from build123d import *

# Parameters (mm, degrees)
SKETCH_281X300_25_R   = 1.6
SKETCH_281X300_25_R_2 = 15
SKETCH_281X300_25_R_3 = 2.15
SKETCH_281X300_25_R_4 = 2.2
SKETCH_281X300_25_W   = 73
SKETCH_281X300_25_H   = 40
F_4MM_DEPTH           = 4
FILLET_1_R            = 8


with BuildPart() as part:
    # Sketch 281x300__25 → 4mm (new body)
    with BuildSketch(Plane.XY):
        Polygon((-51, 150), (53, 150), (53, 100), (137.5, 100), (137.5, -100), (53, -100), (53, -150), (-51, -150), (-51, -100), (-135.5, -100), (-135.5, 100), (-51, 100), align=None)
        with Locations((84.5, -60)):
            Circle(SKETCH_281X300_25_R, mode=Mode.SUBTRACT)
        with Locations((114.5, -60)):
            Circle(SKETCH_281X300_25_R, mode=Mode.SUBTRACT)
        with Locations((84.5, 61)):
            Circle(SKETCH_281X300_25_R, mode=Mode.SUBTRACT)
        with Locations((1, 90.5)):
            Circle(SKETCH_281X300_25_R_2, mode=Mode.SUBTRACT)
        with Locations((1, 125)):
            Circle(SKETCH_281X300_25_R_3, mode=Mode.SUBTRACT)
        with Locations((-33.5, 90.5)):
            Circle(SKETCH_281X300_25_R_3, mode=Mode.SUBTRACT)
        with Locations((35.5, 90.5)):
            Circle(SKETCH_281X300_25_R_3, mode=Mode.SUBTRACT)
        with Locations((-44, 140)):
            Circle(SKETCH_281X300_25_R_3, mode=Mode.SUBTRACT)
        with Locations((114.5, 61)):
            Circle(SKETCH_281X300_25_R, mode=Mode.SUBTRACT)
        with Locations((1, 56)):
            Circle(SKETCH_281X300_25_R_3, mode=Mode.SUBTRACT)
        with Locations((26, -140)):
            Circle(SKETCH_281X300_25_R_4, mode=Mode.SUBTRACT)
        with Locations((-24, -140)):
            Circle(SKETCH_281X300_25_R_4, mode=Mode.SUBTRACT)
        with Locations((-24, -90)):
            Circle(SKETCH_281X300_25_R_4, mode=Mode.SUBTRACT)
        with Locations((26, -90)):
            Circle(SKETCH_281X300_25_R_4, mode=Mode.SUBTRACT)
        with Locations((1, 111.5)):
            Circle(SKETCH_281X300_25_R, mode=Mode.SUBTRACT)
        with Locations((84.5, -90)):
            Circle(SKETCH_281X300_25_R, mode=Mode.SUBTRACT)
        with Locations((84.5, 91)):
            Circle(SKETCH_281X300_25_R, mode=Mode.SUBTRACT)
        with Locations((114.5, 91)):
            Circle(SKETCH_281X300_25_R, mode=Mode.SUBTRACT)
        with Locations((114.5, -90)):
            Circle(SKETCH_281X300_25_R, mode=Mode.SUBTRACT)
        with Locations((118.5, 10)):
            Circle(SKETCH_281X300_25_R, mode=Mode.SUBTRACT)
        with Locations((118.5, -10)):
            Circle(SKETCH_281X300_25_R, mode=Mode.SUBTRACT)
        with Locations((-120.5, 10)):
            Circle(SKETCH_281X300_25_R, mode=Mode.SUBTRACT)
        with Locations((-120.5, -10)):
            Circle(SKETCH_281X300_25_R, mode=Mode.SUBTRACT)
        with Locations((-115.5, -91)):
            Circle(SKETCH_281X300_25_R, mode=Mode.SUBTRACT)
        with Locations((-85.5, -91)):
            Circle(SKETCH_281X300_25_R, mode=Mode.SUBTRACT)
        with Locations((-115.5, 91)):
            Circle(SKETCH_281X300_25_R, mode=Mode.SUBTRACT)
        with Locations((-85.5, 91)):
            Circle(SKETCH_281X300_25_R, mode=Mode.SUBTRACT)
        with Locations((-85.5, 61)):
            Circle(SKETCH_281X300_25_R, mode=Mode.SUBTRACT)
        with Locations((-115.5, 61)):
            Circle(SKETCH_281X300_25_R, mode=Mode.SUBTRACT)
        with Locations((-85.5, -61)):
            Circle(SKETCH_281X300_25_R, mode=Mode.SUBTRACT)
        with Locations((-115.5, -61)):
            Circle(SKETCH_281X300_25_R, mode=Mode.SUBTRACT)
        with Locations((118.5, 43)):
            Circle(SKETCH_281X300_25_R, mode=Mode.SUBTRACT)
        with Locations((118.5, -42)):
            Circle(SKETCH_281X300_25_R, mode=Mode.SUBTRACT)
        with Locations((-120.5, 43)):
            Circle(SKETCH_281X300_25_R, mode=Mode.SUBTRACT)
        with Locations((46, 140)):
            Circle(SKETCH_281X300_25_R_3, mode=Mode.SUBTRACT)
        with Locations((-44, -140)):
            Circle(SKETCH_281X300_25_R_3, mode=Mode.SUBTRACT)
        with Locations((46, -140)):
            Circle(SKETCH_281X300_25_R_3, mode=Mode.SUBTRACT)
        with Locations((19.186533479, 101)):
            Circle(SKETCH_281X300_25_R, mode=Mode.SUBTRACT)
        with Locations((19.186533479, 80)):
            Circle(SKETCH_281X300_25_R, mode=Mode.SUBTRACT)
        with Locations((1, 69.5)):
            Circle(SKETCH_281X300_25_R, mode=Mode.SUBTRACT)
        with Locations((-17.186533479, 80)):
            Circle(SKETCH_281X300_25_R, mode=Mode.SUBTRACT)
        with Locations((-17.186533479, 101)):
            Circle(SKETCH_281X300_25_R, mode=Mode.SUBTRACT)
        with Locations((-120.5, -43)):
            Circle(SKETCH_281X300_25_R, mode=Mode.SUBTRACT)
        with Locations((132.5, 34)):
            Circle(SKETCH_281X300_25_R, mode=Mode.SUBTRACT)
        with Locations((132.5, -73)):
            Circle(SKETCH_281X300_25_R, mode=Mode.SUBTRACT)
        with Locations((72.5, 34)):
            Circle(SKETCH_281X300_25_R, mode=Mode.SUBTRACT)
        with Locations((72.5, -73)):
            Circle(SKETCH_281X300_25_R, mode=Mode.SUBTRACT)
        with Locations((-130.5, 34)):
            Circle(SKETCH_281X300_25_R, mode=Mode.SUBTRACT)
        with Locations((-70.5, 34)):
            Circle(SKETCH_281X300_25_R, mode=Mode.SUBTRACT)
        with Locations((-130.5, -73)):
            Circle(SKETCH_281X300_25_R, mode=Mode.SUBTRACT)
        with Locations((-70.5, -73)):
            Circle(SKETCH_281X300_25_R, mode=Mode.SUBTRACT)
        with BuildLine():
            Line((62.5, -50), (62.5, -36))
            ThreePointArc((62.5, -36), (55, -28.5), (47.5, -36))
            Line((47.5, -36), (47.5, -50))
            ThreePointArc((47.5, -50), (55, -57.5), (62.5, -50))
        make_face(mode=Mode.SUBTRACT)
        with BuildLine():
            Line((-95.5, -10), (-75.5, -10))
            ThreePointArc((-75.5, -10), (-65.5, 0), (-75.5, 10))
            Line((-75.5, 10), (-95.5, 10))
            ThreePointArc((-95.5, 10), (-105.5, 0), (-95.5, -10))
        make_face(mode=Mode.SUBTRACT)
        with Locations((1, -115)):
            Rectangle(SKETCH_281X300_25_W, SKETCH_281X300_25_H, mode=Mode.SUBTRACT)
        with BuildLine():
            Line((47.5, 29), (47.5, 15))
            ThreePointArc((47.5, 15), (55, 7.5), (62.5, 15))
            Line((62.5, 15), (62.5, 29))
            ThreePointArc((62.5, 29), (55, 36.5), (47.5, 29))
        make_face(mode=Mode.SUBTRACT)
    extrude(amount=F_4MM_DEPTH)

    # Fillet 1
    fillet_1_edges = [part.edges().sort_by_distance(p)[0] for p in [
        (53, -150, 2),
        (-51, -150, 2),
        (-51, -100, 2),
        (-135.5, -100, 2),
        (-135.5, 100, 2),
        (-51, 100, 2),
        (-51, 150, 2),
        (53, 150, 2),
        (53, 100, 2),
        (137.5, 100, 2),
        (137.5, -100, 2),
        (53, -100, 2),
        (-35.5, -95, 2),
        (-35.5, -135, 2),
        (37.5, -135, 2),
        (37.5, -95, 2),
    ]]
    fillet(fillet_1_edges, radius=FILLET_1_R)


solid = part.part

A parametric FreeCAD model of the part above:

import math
import FreeCAD as App
import Part
import Sketcher
Q = App.Units.Quantity


def edges_at(feature, points):
    """Names of the edges that pass closest to the given points."""
    edges = feature.Shape.Edges
    near = lambda p: min(range(len(edges)), key=lambda i: edges[i].distToShape(Part.Vertex(*p))[0])
    return sorted({f"Edge{near(p) + 1}" for p in points})


def add_polygon(sketch, points):
    """Adds a closed chain of lines whose ends are joined by coincident constraints."""
    first, n = sketch.GeometryCount, len(points)
    for a, b in zip(points, points[1:] + points[:1]):
        sketch.addGeometry(Part.LineSegment(App.Vector(*a, 0), App.Vector(*b, 0)), False)
    for i in range(n):
        sketch.addConstraint(Sketcher.Constraint("Coincident", first + i, 2, first + (i + 1) % n, 1))

doc = App.newDocument("Part")
body = doc.addObject("PartDesign::Body", "Body")

sketch1 = doc.addObject("Sketcher::SketchObject", "Sketch")
body.addObject(sketch1)
sketch1.AttachmentSupport = (doc.XY_Plane, [""])
sketch1.MapMode = "FlatFace"
add_polygon(sketch1, [(53, 150), (-51, 150), (-51, 100), (-135.5, 100), (-135.5, -100), (-51, -100), (-51, -150), (53, -150), (53, -100), (137.5, -100), (137.5, 100), (53, 100)])
sketch1.addGeometry(Part.Circle(App.Vector(114.5, -90, 0), App.Vector(0, 0, 1), 1.6), False)
sketch1.addGeometry(Part.Circle(App.Vector(132.5, -73, 0), App.Vector(0, 0, 1), 1.6), False)
sketch1.addGeometry(Part.Circle(App.Vector(84.5, -90, 0), App.Vector(0, 0, 1), 1.6), False)
sketch1.addGeometry(Part.Circle(App.Vector(72.5, -73, 0), App.Vector(0, 0, 1), 1.6), False)
sketch1.addGeometry(Part.Circle(App.Vector(46, -140, 0), App.Vector(0, 0, 1), 2.1), False)
sketch1.addGeometry(Part.Circle(App.Vector(26, -140, 0), App.Vector(0, 0, 1), 2.2), False)
sketch1.addGeometry(Part.Circle(App.Vector(26, -90, 0), App.Vector(0, 0, 1), 2.2), False)
sketch1.addGeometry(Part.Circle(App.Vector(114.5, -60, 0), App.Vector(0, 0, 1), 1.6), False)
sketch1.addGeometry(Part.Circle(App.Vector(118.5, -42, 0), App.Vector(0, 0, 1), 1.6), False)
sketch1.addGeometry(Part.Circle(App.Vector(84.5, -60, 0), App.Vector(0, 0, 1), 1.6), False)
sketch1.addGeometry(Part.Circle(App.Vector(118.5, -10, 0), App.Vector(0, 0, 1), 1.6), False)
sketch1.addGeometry(Part.ArcOfCircle(Part.Circle(App.Vector(55, -50, 0), App.Vector(0, 0, 1), 7.5), math.radians(180), math.radians(360)), False)
sketch1.addGeometry(Part.LineSegment(App.Vector(47.5, -50, 0), App.Vector(47.5, -36, 0)), False)
sketch1.addGeometry(Part.ArcOfCircle(Part.Circle(App.Vector(55, -36, 0), App.Vector(0, 0, 1), 7.5), math.radians(0), math.radians(180)), False)
sketch1.addGeometry(Part.LineSegment(App.Vector(62.5, -36, 0), App.Vector(62.5, -50, 0)), False)
sketch1.addGeometry(Part.Circle(App.Vector(-24, -140, 0), App.Vector(0, 0, 1), 2.2), False)
add_polygon(sketch1, [(-35.5, -135), (-35.5, -95), (37.5, -95), (37.5, -135)])
sketch1.addGeometry(Part.Circle(App.Vector(-44, -140, 0), App.Vector(0, 0, 1), 2.1), False)
sketch1.addGeometry(Part.Circle(App.Vector(-24, -90, 0), App.Vector(0, 0, 1), 2.2), False)
sketch1.addGeometry(Part.Circle(App.Vector(-85.5, -91, 0), App.Vector(0, 0, 1), 1.6), False)
sketch1.addGeometry(Part.Circle(App.Vector(-70.5, -73, 0), App.Vector(0, 0, 1), 1.6), False)
sketch1.addGeometry(Part.Circle(App.Vector(-115.5, -91, 0), App.Vector(0, 0, 1), 1.6), False)
sketch1.addGeometry(Part.Circle(App.Vector(-130.5, -73, 0), App.Vector(0, 0, 1), 1.6), False)
sketch1.addGeometry(Part.Circle(App.Vector(-85.5, -61, 0), App.Vector(0, 0, 1), 1.6), False)
sketch1.addGeometry(Part.Circle(App.Vector(-115.5, -61, 0), App.Vector(0, 0, 1), 1.6), False)
sketch1.addGeometry(Part.Circle(App.Vector(-120.5, -43, 0), App.Vector(0, 0, 1), 1.6), False)
sketch1.addGeometry(Part.Circle(App.Vector(-120.5, -10, 0), App.Vector(0, 0, 1), 1.6), False)
sketch1.addGeometry(Part.Circle(App.Vector(118.5, 10, 0), App.Vector(0, 0, 1), 1.6), False)
sketch1.addGeometry(Part.Circle(App.Vector(132.5, 34, 0), App.Vector(0, 0, 1), 1.6), False)
sketch1.addGeometry(Part.Circle(App.Vector(72.5, 34, 0), App.Vector(0, 0, 1), 1.6), False)
sketch1.addGeometry(Part.Circle(App.Vector(118.5, 43, 0), App.Vector(0, 0, 1), 1.6), False)
sketch1.addGeometry(Part.Circle(App.Vector(114.5, 61, 0), App.Vector(0, 0, 1), 1.6), False)
sketch1.addGeometry(Part.Circle(App.Vector(84.5, 61, 0), App.Vector(0, 0, 1), 1.6), False)
sketch1.addGeometry(Part.ArcOfCircle(Part.Circle(App.Vector(55, 29, 0), App.Vector(0, 0, 1), 7.5), math.radians(0), math.radians(180)), False)
sketch1.addGeometry(Part.LineSegment(App.Vector(62.5, 29, 0), App.Vector(62.5, 15, 0)), False)
sketch1.addGeometry(Part.ArcOfCircle(Part.Circle(App.Vector(55, 15, 0), App.Vector(0, 0, 1), 7.5), math.radians(180), math.radians(360)), False)
sketch1.addGeometry(Part.LineSegment(App.Vector(47.5, 15, 0), App.Vector(47.5, 29, 0)), False)
sketch1.addGeometry(Part.Circle(App.Vector(114.5, 91, 0), App.Vector(0, 0, 1), 1.6), False)
sketch1.addGeometry(Part.Circle(App.Vector(84.5, 91, 0), App.Vector(0, 0, 1), 1.6), False)
sketch1.addGeometry(Part.Circle(App.Vector(35.5, 90.5, 0), App.Vector(0, 0, 1), 2.1), False)
sketch1.addGeometry(Part.Circle(App.Vector(19.2, 80, 0), App.Vector(0, 0, 1), 1.6), False)
sketch1.addGeometry(Part.Circle(App.Vector(19.2, 101, 0), App.Vector(0, 0, 1), 1.6), False)
sketch1.addGeometry(Part.Circle(App.Vector(46, 140, 0), App.Vector(0, 0, 1), 2.1), False)
sketch1.addGeometry(Part.Circle(App.Vector(1, 56, 0), App.Vector(0, 0, 1), 2.1), False)
sketch1.addGeometry(Part.Circle(App.Vector(1, 69.5, 0), App.Vector(0, 0, 1), 1.6), False)
sketch1.addGeometry(Part.ArcOfCircle(Part.Circle(App.Vector(-95.5, 0, 0), App.Vector(0, 0, 1), 10), math.radians(90), math.radians(270)), False)
sketch1.addGeometry(Part.LineSegment(App.Vector(-95.5, 10, 0), App.Vector(-75.5, 10, 0)), False)
sketch1.addGeometry(Part.ArcOfCircle(Part.Circle(App.Vector(-75.5, 0, 0), App.Vector(0, 0, 1), 10), math.radians(-90), math.radians(90)), False)
sketch1.addGeometry(Part.LineSegment(App.Vector(-75.5, -10, 0), App.Vector(-95.5, -10, 0)), False)
sketch1.addGeometry(Part.Circle(App.Vector(-70.5, 34, 0), App.Vector(0, 0, 1), 1.6), False)
sketch1.addGeometry(Part.Circle(App.Vector(-120.5, 10, 0), App.Vector(0, 0, 1), 1.6), False)
sketch1.addGeometry(Part.Circle(App.Vector(-130.5, 34, 0), App.Vector(0, 0, 1), 1.6), False)
sketch1.addGeometry(Part.Circle(App.Vector(-85.5, 61, 0), App.Vector(0, 0, 1), 1.6), False)
sketch1.addGeometry(Part.Circle(App.Vector(-120.5, 43, 0), App.Vector(0, 0, 1), 1.6), False)
sketch1.addGeometry(Part.Circle(App.Vector(-115.5, 61, 0), App.Vector(0, 0, 1), 1.6), False)
sketch1.addGeometry(Part.Circle(App.Vector(-17.2, 80, 0), App.Vector(0, 0, 1), 1.6), False)
sketch1.addGeometry(Part.Circle(App.Vector(1, 90.5, 0), App.Vector(0, 0, 1), 15), False)
sketch1.addGeometry(Part.Circle(App.Vector(-17.2, 101, 0), App.Vector(0, 0, 1), 1.6), False)
sketch1.addGeometry(Part.Circle(App.Vector(-33.5, 90.5, 0), App.Vector(0, 0, 1), 2.1), False)
sketch1.addGeometry(Part.Circle(App.Vector(1, 111.5, 0), App.Vector(0, 0, 1), 1.6), False)
sketch1.addGeometry(Part.Circle(App.Vector(1, 125, 0), App.Vector(0, 0, 1), 2.1), False)
sketch1.addGeometry(Part.Circle(App.Vector(-44, 140, 0), App.Vector(0, 0, 1), 2.1), False)
sketch1.addGeometry(Part.Circle(App.Vector(-85.5, 91, 0), App.Vector(0, 0, 1), 1.6), False)
sketch1.addGeometry(Part.Circle(App.Vector(-115.5, 91, 0), App.Vector(0, 0, 1), 1.6), False)
sketch1.addConstraint(Sketcher.Constraint("Tangent", 23, 1, 24, 1))
sketch1.addConstraint(Sketcher.Constraint("Tangent", 24, 2, 25, 2))
sketch1.addConstraint(Sketcher.Constraint("Tangent", 25, 1, 26, 1))
sketch1.addConstraint(Sketcher.Constraint("Tangent", 26, 2, 23, 2))
sketch1.addConstraint(Sketcher.Constraint("Tangent", 48, 1, 49, 1))
sketch1.addConstraint(Sketcher.Constraint("Tangent", 49, 2, 50, 2))
sketch1.addConstraint(Sketcher.Constraint("Tangent", 50, 1, 51, 1))
sketch1.addConstraint(Sketcher.Constraint("Tangent", 51, 2, 48, 2))
sketch1.addConstraint(Sketcher.Constraint("Tangent", 60, 1, 61, 1))
sketch1.addConstraint(Sketcher.Constraint("Tangent", 61, 2, 62, 2))
sketch1.addConstraint(Sketcher.Constraint("Tangent", 62, 1, 63, 1))
sketch1.addConstraint(Sketcher.Constraint("Tangent", 63, 2, 60, 2))
sketch1.addConstraint(Sketcher.Constraint("Horizontal", 0))
sketch1.addConstraint(Sketcher.Constraint("Vertical", 1))
sketch1.addConstraint(Sketcher.Constraint("Horizontal", 2))
sketch1.addConstraint(Sketcher.Constraint("Vertical", 3))
sketch1.addConstraint(Sketcher.Constraint("Horizontal", 4))
sketch1.addConstraint(Sketcher.Constraint("Vertical", 5))
sketch1.addConstraint(Sketcher.Constraint("Horizontal", 6))
sketch1.addConstraint(Sketcher.Constraint("Vertical", 7))
sketch1.addConstraint(Sketcher.Constraint("Horizontal", 8))
sketch1.addConstraint(Sketcher.Constraint("Vertical", 9))
sketch1.addConstraint(Sketcher.Constraint("Horizontal", 10))
sketch1.addConstraint(Sketcher.Constraint("Vertical", 11))
sketch1.addConstraint(Sketcher.Constraint("Vertical", 24))
sketch1.addConstraint(Sketcher.Constraint("Vertical", 26))
sketch1.addConstraint(Sketcher.Constraint("Vertical", 28))
sketch1.addConstraint(Sketcher.Constraint("Horizontal", 29))
sketch1.addConstraint(Sketcher.Constraint("Vertical", 30))
sketch1.addConstraint(Sketcher.Constraint("Horizontal", 31))
sketch1.addConstraint(Sketcher.Constraint("Vertical", 49))
sketch1.addConstraint(Sketcher.Constraint("Vertical", 51))
sketch1.addConstraint(Sketcher.Constraint("Horizontal", 61))
sketch1.addConstraint(Sketcher.Constraint("Horizontal", 63))
sketch1.addConstraint(Sketcher.Constraint("Equal", 12, 13))
sketch1.addConstraint(Sketcher.Constraint("Equal", 13, 14))
sketch1.addConstraint(Sketcher.Constraint("Equal", 14, 15))
sketch1.addConstraint(Sketcher.Constraint("Equal", 17, 18))
sketch1.addConstraint(Sketcher.Constraint("Equal", 15, 19))
sketch1.addConstraint(Sketcher.Constraint("Equal", 19, 20))
sketch1.addConstraint(Sketcher.Constraint("Equal", 20, 21))
sketch1.addConstraint(Sketcher.Constraint("Equal", 21, 22))
sketch1.addConstraint(Sketcher.Constraint("Equal", 18, 27))
sketch1.addConstraint(Sketcher.Constraint("Equal", 16, 32))
sketch1.addConstraint(Sketcher.Constraint("Equal", 27, 33))
sketch1.addConstraint(Sketcher.Constraint("Equal", 22, 34))
sketch1.addConstraint(Sketcher.Constraint("Equal", 34, 35))
sketch1.addConstraint(Sketcher.Constraint("Equal", 35, 36))
sketch1.addConstraint(Sketcher.Constraint("Equal", 36, 37))
sketch1.addConstraint(Sketcher.Constraint("Equal", 37, 38))
sketch1.addConstraint(Sketcher.Constraint("Equal", 38, 39))
sketch1.addConstraint(Sketcher.Constraint("Equal", 39, 40))
sketch1.addConstraint(Sketcher.Constraint("Equal", 40, 41))
sketch1.addConstraint(Sketcher.Constraint("Equal", 41, 42))
sketch1.addConstraint(Sketcher.Constraint("Equal", 42, 43))
sketch1.addConstraint(Sketcher.Constraint("Equal", 43, 44))
sketch1.addConstraint(Sketcher.Constraint("Equal", 44, 45))
sketch1.addConstraint(Sketcher.Constraint("Equal", 45, 46))
sketch1.addConstraint(Sketcher.Constraint("Equal", 46, 47))
sketch1.addConstraint(Sketcher.Constraint("Equal", 25, 48))
sketch1.addConstraint(Sketcher.Constraint("Equal", 47, 52))
sketch1.addConstraint(Sketcher.Constraint("Equal", 52, 53))
sketch1.addConstraint(Sketcher.Constraint("Equal", 32, 54))
sketch1.addConstraint(Sketcher.Constraint("Equal", 53, 55))
sketch1.addConstraint(Sketcher.Constraint("Equal", 55, 56))
sketch1.addConstraint(Sketcher.Constraint("Equal", 54, 57))
sketch1.addConstraint(Sketcher.Constraint("Equal", 57, 58))
sketch1.addConstraint(Sketcher.Constraint("Equal", 56, 59))
sketch1.addConstraint(Sketcher.Constraint("Equal", 59, 64))
sketch1.addConstraint(Sketcher.Constraint("Equal", 64, 65))
sketch1.addConstraint(Sketcher.Constraint("Equal", 65, 66))
sketch1.addConstraint(Sketcher.Constraint("Equal", 66, 67))
sketch1.addConstraint(Sketcher.Constraint("Equal", 67, 68))
sketch1.addConstraint(Sketcher.Constraint("Equal", 68, 69))
sketch1.addConstraint(Sketcher.Constraint("Equal", 69, 70))
sketch1.addConstraint(Sketcher.Constraint("Equal", 70, 72))
sketch1.addConstraint(Sketcher.Constraint("Equal", 58, 73))
sketch1.addConstraint(Sketcher.Constraint("Equal", 72, 74))
sketch1.addConstraint(Sketcher.Constraint("Equal", 73, 75))
sketch1.addConstraint(Sketcher.Constraint("Equal", 75, 76))
sketch1.addConstraint(Sketcher.Constraint("Equal", 74, 77))
sketch1.addConstraint(Sketcher.Constraint("Equal", 77, 78))
sketch1.addConstraint(Sketcher.Constraint("Symmetric", 22, 3, 42, 3, -1))
sketch1.addConstraint(Sketcher.Constraint("Symmetric", 16, 3, 57, 3, -1))
sketch1.addConstraint(Sketcher.Constraint("Symmetric", 41, 3, 65, 3, -1))
sketch1.addConstraint(Sketcher.Constraint("Symmetric", 38, 3, 67, 3, -1))
sketch1.addConstraint(Sketcher.Constraint("Symmetric", 40, 3, 68, 3, -1))
sketch1.addConstraint(Sketcher.Constraint("Symmetric", 39, 3, 69, 3, -1))
sketch1.addConstraint(Sketcher.Constraint("Symmetric", 32, 3, 76, 3, -1))
sketch1.addConstraint(Sketcher.Constraint("Symmetric", 34, 3, 77, 3, -1))
sketch1.addConstraint(Sketcher.Constraint("Symmetric", 36, 3, 78, 3, -1))
sketch1.addConstraint(Sketcher.Constraint("Symmetric", 1, 2, 4, 2, -1))
sketch1.addConstraint(Sketcher.Constraint("Symmetric", 7, 2, 10, 2, -1))
sketch1.addConstraint(Sketcher.Constraint("PointOnObject", 60, 3, -1))
sketch1.addConstraint(Sketcher.Constraint("Horizontal", 12, 3, 14, 3))
sketch1.addConstraint(Sketcher.Constraint("Horizontal", 13, 3, 15, 3))
sketch1.addConstraint(Sketcher.Constraint("Horizontal", 16, 3, 17, 3))
sketch1.addConstraint(Sketcher.Constraint("Horizontal", 14, 3, 18, 3))
sketch1.addConstraint(Sketcher.Constraint("Horizontal", 19, 3, 21, 3))
sketch1.addConstraint(Sketcher.Constraint("Horizontal", 17, 3, 27, 3))
sketch1.addConstraint(Sketcher.Constraint("Horizontal", 27, 3, 32, 3))
sketch1.addConstraint(Sketcher.Constraint("Horizontal", 18, 3, 33, 3))
sketch1.addConstraint(Sketcher.Constraint("Horizontal", 15, 3, 35, 3))
sketch1.addConstraint(Sketcher.Constraint("Horizontal", 34, 3, 36, 3))
sketch1.addConstraint(Sketcher.Constraint("Horizontal", 35, 3, 37, 3))
sketch1.addConstraint(Sketcher.Constraint("Horizontal", 38, 3, 39, 3))
sketch1.addConstraint(Sketcher.Constraint("Horizontal", 22, 3, 41, 3))
sketch1.addConstraint(Sketcher.Constraint("Horizontal", 43, 3, 44, 3))
sketch1.addConstraint(Sketcher.Constraint("Horizontal", 46, 3, 47, 3))
sketch1.addConstraint(Sketcher.Constraint("Horizontal", 52, 3, 53, 3))
sketch1.addConstraint(Sketcher.Constraint("Horizontal", 44, 3, 64, 3))
sketch1.addConstraint(Sketcher.Constraint("Horizontal", 64, 3, 66, 3))
sketch1.addConstraint(Sketcher.Constraint("Horizontal", 47, 3, 67, 3))
sketch1.addConstraint(Sketcher.Constraint("Horizontal", 45, 3, 68, 3))
sketch1.addConstraint(Sketcher.Constraint("Horizontal", 55, 3, 70, 3))
sketch1.addConstraint(Sketcher.Constraint("Horizontal", 54, 3, 71, 3))
sketch1.addConstraint(Sketcher.Constraint("Horizontal", 56, 3, 72, 3))
sketch1.addConstraint(Sketcher.Constraint("Horizontal", 71, 3, 73, 3))
sketch1.addConstraint(Sketcher.Constraint("Horizontal", 53, 3, 77, 3))
sketch1.addConstraint(Sketcher.Constraint("Horizontal", 4, 2, 7, 2))
sketch1.addConstraint(Sketcher.Constraint("Horizontal", 65, 3, 60, 1))
sketch1.addConstraint(Sketcher.Constraint("Vertical", 17, 3, 18, 3))
sketch1.addConstraint(Sketcher.Constraint("Vertical", 12, 3, 19, 3))
sketch1.addConstraint(Sketcher.Constraint("Vertical", 14, 3, 21, 3))
sketch1.addConstraint(Sketcher.Constraint("Vertical", 20, 3, 22, 3))
sketch1.addConstraint(Sketcher.Constraint("Vertical", 27, 3, 33, 3))
sketch1.addConstraint(Sketcher.Constraint("Vertical", 34, 3, 38, 3))
sketch1.addConstraint(Sketcher.Constraint("Vertical", 36, 3, 39, 3))
sketch1.addConstraint(Sketcher.Constraint("Vertical", 40, 3, 41, 3))
sketch1.addConstraint(Sketcher.Constraint("Vertical", 13, 3, 43, 3))
sketch1.addConstraint(Sketcher.Constraint("Vertical", 15, 3, 44, 3))
sketch1.addConstraint(Sketcher.Constraint("Vertical", 42, 3, 45, 3))
sketch1.addConstraint(Sketcher.Constraint("Vertical", 19, 3, 46, 3))
sketch1.addConstraint(Sketcher.Constraint("Vertical", 21, 3, 47, 3))
sketch1.addConstraint(Sketcher.Constraint("Vertical", 25, 3, 48, 3))
sketch1.addConstraint(Sketcher.Constraint("Vertical", 46, 3, 52, 3))
sketch1.addConstraint(Sketcher.Constraint("Vertical", 47, 3, 53, 3))
sketch1.addConstraint(Sketcher.Constraint("Vertical", 55, 3, 56, 3))
sketch1.addConstraint(Sketcher.Constraint("Vertical", 58, 3, 59, 3))
sketch1.addConstraint(Sketcher.Constraint("Vertical", 35, 3, 64, 3))
sketch1.addConstraint(Sketcher.Constraint("Vertical", 37, 3, 66, 3))
sketch1.addConstraint(Sketcher.Constraint("Vertical", 59, 3, 71, 3))
sketch1.addConstraint(Sketcher.Constraint("Vertical", 70, 3, 72, 3))
sketch1.addConstraint(Sketcher.Constraint("Vertical", 71, 3, 74, 3))
sketch1.addConstraint(Sketcher.Constraint("Vertical", 74, 3, 75, 3))
sketch1.addConstraint(Sketcher.Constraint("Equal", 4, 8))
sketch1.addConstraint(Sketcher.Constraint("Equal", 1, 5))
sketch1.addConstraint(Sketcher.Constraint("Equal", 26, 49))
sketch1.addConstraint(Sketcher.Constraint("Diameter", 71, Q("30 mm")))
sketch1.addConstraint(Sketcher.Constraint("Radius", 60, Q("10 mm")))
sketch1.addConstraint(Sketcher.Constraint("Diameter", 12, Q("3.2 mm")))
sketch1.addConstraint(Sketcher.Constraint("Diameter", 16, Q("4.3 mm")))
sketch1.addConstraint(Sketcher.Constraint("Diameter", 17, Q("4.4 mm")))
sketch1.addConstraint(Sketcher.Constraint("Radius", 23, Q("7.5 mm")))
sketch1.addConstraint(Sketcher.Constraint("DistanceX", 0, 2, 0, 1, Q("104 mm")))
sketch1.addConstraint(Sketcher.Constraint("DistanceX", 29, 1, 29, 2, Q("73 mm")))
sketch1.addConstraint(Sketcher.Constraint("DistanceX", 61, 1, 61, 2, Q("20 mm")))
sketch1.addConstraint(Sketcher.Constraint("DistanceY", 1, 2, 1, 1, Q("50 mm")))
sketch1.addConstraint(Sketcher.Constraint("DistanceY", 3, 2, 3, 1, Q("200 mm")))
sketch1.addConstraint(Sketcher.Constraint("DistanceY", 24, 1, 24, 2, Q("14 mm")))
sketch1.addConstraint(Sketcher.Constraint("DistanceY", 28, 1, 28, 2, Q("40 mm")))
sketch1.addConstraint(Sketcher.Constraint("DistanceX", 2, 2, 2, 1, Q("84.5 mm")))
sketch1.addConstraint(Sketcher.Constraint("DistanceY", 12, 3, -1, 1, Q("90 mm")))
sketch1.addConstraint(Sketcher.Constraint("DistanceY", 13, 3, -1, 1, Q("73 mm")))
sketch1.addConstraint(Sketcher.Constraint("DistanceX", -1, 1, 16, 3, Q("46 mm")))
sketch1.addConstraint(Sketcher.Constraint("DistanceY", 16, 3, -1, 1, Q("140 mm")))
sketch1.addConstraint(Sketcher.Constraint("DistanceX", -1, 1, 17, 3, Q("26 mm")))
sketch1.addConstraint(Sketcher.Constraint("DistanceY", 19, 3, -1, 1, Q("60 mm")))
sketch1.addConstraint(Sketcher.Constraint("DistanceY", 20, 3, -1, 1, Q("42 mm")))
sketch1.addConstraint(Sketcher.Constraint("DistanceX", -1, 1, 23, 3, Q("55 mm")))
sketch1.addConstraint(Sketcher.Constraint("DistanceY", 23, 3, -1, 1, Q("50 mm")))
sketch1.addConstraint(Sketcher.Constraint("DistanceX", 27, 3, -1, 1, Q("24 mm")))
sketch1.addConstraint(Sketcher.Constraint("DistanceX", 32, 3, -1, 1, Q("44 mm")))
sketch1.addConstraint(Sketcher.Constraint("DistanceY", 34, 3, -1, 1, Q("91 mm")))
sketch1.addConstraint(Sketcher.Constraint("DistanceY", 38, 3, -1, 1, Q("61 mm")))
sketch1.addConstraint(Sketcher.Constraint("DistanceY", 40, 3, -1, 1, Q("43 mm")))
sketch1.addConstraint(Sketcher.Constraint("DistanceY", -1, 1, 43, 3, Q("34 mm")))
sketch1.addConstraint(Sketcher.Constraint("DistanceY", -1, 1, 48, 3, Q("29 mm")))
sketch1.addConstraint(Sketcher.Constraint("DistanceY", -1, 1, 55, 3, Q("80 mm")))
sketch1.addConstraint(Sketcher.Constraint("DistanceY", -1, 1, 56, 3, Q("101 mm")))
sketch1.addConstraint(Sketcher.Constraint("DistanceX", -1, 1, 58, 3, Q("1 mm")))
sketch1.addConstraint(Sketcher.Constraint("DistanceY", -1, 1, 58, 3, Q("56 mm")))
sketch1.addConstraint(Sketcher.Constraint("DistanceY", -1, 1, 75, 3, Q("125 mm")))
sketch1.addConstraint(Sketcher.Constraint("DistanceX", 0, 2, -1, 1, Q("51 mm")))
sketch1.addConstraint(Sketcher.Constraint("DistanceY", 28, 2, -1, 1, Q("95 mm")))
sketch1.addConstraint(Sketcher.Constraint("DistanceX", -1, 1, 12, 3, Q("114.5 mm")))
sketch1.addConstraint(Sketcher.Constraint("DistanceX", -1, 1, 13, 3, Q("132.5 mm")))
sketch1.addConstraint(Sketcher.Constraint("DistanceX", -1, 1, 14, 3, Q("84.5 mm")))
sketch1.addConstraint(Sketcher.Constraint("DistanceX", -1, 1, 15, 3, Q("72.5 mm")))
sketch1.addConstraint(Sketcher.Constraint("DistanceX", -1, 1, 20, 3, Q("118.5 mm")))
sketch1.addConstraint(Sketcher.Constraint("DistanceX", 34, 3, -1, 1, Q("85.5 mm")))
sketch1.addConstraint(Sketcher.Constraint("DistanceX", 35, 3, -1, 1, Q("70.5 mm")))
sketch1.addConstraint(Sketcher.Constraint("DistanceX", 36, 3, -1, 1, Q("115.5 mm")))
sketch1.addConstraint(Sketcher.Constraint("DistanceX", 37, 3, -1, 1, Q("130.5 mm")))
sketch1.addConstraint(Sketcher.Constraint("DistanceX", 40, 3, -1, 1, Q("120.5 mm")))
sketch1.addConstraint(Sketcher.Constraint("DistanceX", -1, 1, 54, 3, Q("35.5 mm")))
sketch1.addConstraint(Sketcher.Constraint("DistanceY", -1, 1, 54, 3, Q("90.5 mm")))
sketch1.addConstraint(Sketcher.Constraint("DistanceY", -1, 1, 59, 3, Q("69.5 mm")))
sketch1.addConstraint(Sketcher.Constraint("DistanceX", 60, 3, -1, 1, Q("95.5 mm")))
sketch1.addConstraint(Sketcher.Constraint("DistanceX", 73, 3, -1, 1, Q("33.5 mm")))
sketch1.addConstraint(Sketcher.Constraint("DistanceY", -1, 1, 74, 3, Q("111.5 mm")))
sketch1.addConstraint(Sketcher.Constraint("DistanceX", 28, 2, -1, 1, Q("35.5 mm")))
sketch1.addConstraint(Sketcher.Constraint("DistanceX", -1, 1, 55, 3, Q("19.186533 mm")))
sketch1.addConstraint(Sketcher.Constraint("DistanceX", 70, 3, -1, 1, Q("17.186533 mm")))
pad1 = doc.addObject("PartDesign::Pad", "Pad")
body.addObject(pad1)
pad1.Profile = sketch1
pad1.Length = 4
doc.recompute()

fillet = doc.addObject("PartDesign::Fillet", "Fillet")
body.addObject(fillet)
fillet.Base = (pad1, edges_at(pad1, [
    (53, -150, 2),
    (-51, -150, 2),
    (-51, -100, 2),
    (-135.5, -100, 2),
    (-135.5, 100, 2),
    (-51, 100, 2),
    (-51, 150, 2),
    (53, 150, 2),
    (53, 100, 2),
    (137.5, 100, 2),
    (137.5, -100, 2),
    (53, -100, 2),
    (-35.5, -95, 2),
    (-35.5, -135, 2),
    (37.5, -135, 2),
    (37.5, -95, 2),
]))
fillet.Radius = 8

doc.recompute()
